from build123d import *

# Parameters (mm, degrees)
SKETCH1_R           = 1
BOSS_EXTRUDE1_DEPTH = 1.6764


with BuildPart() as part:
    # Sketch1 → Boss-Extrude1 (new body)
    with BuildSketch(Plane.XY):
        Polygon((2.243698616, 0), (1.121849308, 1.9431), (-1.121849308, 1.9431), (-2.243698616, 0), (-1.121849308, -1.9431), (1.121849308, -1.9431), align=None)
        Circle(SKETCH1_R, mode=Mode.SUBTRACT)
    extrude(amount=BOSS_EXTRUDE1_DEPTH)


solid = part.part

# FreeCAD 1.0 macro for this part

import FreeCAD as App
import Part
import Sketcher

V = App.Vector
Q = App.Units.Quantity


def add_polygon(sketch, points):
    """Adds a closed chain of lines whose ends are joined by coincident constraints."""
    first, n = sketch.GeometryCount, len(points)
    for a, b in zip(points, points[1:] + points[:1]):
        sketch.addGeometry(Part.LineSegment(App.Vector(*a, 0), App.Vector(*b, 0)), False)
    for i in range(n):
        sketch.addConstraint(Sketcher.Constraint("Coincident", first + i, 2, first + (i + 1) % n, 1))

doc = App.newDocument("Part")
body = doc.addObject("PartDesign::Body", "Body")

# Sketch on XY plane
sketch1 = doc.addObject("Sketcher::SketchObject", "Sketch")
body.addObject(sketch1)
sketch1.AttachmentSupport = (doc.XY_Plane, [""])
sketch1.MapMode = "FlatFace"
add_polygon(sketch1, [(2.2, 0), (1.1, 1.9), (-1.1, 1.9), (-2.2, 0), (-1.1, -1.9), (1.1, -1.9)])  # lines 0-5
sketch1.addGeometry(Part.Circle(V(0, 0, 0), V(0, 0, 1), 1), False)  # 6
sketch1.addConstraint(Sketcher.Constraint("Horizontal", 1))
sketch1.addConstraint(Sketcher.Constraint("Horizontal", 4))
sketch1.addConstraint(Sketcher.Constraint("Coincident", 6, 3, -1, 1))
sketch1.addConstraint(Sketcher.Constraint("Symmetric", 0, 2, 3, 2, -1, 1))
sketch1.addConstraint(Sketcher.Constraint("Symmetric", 2, 2, 5, 2, -1, 1))
sketch1.addConstraint(Sketcher.Constraint("PointOnObject", 2, 2, -1))
sketch1.addConstraint(Sketcher.Constraint("Parallel", 2, 5))
sketch1.addConstraint(Sketcher.Constraint("Vertical", 1, 2, 3, 2))
sketch1.addConstraint(Sketcher.Constraint("Diameter", 6, Q("2 mm")))
sketch1.addConstraint(Sketcher.Constraint("Angle", 0, Q("120 deg")))
sketch1.addConstraint(Sketcher.Constraint("DistanceX", 1, 2, 1, 1, Q("2.243699 mm")))
sketch1.addConstraint(Sketcher.Constraint("Distance", 0, Q("2.243699 mm")))
pad1 = doc.addObject("PartDesign::Pad", "Pad")
body.addObject(pad1)
pad1.Profile = sketch1
pad1.Length = 1.6764

doc.recompute()
